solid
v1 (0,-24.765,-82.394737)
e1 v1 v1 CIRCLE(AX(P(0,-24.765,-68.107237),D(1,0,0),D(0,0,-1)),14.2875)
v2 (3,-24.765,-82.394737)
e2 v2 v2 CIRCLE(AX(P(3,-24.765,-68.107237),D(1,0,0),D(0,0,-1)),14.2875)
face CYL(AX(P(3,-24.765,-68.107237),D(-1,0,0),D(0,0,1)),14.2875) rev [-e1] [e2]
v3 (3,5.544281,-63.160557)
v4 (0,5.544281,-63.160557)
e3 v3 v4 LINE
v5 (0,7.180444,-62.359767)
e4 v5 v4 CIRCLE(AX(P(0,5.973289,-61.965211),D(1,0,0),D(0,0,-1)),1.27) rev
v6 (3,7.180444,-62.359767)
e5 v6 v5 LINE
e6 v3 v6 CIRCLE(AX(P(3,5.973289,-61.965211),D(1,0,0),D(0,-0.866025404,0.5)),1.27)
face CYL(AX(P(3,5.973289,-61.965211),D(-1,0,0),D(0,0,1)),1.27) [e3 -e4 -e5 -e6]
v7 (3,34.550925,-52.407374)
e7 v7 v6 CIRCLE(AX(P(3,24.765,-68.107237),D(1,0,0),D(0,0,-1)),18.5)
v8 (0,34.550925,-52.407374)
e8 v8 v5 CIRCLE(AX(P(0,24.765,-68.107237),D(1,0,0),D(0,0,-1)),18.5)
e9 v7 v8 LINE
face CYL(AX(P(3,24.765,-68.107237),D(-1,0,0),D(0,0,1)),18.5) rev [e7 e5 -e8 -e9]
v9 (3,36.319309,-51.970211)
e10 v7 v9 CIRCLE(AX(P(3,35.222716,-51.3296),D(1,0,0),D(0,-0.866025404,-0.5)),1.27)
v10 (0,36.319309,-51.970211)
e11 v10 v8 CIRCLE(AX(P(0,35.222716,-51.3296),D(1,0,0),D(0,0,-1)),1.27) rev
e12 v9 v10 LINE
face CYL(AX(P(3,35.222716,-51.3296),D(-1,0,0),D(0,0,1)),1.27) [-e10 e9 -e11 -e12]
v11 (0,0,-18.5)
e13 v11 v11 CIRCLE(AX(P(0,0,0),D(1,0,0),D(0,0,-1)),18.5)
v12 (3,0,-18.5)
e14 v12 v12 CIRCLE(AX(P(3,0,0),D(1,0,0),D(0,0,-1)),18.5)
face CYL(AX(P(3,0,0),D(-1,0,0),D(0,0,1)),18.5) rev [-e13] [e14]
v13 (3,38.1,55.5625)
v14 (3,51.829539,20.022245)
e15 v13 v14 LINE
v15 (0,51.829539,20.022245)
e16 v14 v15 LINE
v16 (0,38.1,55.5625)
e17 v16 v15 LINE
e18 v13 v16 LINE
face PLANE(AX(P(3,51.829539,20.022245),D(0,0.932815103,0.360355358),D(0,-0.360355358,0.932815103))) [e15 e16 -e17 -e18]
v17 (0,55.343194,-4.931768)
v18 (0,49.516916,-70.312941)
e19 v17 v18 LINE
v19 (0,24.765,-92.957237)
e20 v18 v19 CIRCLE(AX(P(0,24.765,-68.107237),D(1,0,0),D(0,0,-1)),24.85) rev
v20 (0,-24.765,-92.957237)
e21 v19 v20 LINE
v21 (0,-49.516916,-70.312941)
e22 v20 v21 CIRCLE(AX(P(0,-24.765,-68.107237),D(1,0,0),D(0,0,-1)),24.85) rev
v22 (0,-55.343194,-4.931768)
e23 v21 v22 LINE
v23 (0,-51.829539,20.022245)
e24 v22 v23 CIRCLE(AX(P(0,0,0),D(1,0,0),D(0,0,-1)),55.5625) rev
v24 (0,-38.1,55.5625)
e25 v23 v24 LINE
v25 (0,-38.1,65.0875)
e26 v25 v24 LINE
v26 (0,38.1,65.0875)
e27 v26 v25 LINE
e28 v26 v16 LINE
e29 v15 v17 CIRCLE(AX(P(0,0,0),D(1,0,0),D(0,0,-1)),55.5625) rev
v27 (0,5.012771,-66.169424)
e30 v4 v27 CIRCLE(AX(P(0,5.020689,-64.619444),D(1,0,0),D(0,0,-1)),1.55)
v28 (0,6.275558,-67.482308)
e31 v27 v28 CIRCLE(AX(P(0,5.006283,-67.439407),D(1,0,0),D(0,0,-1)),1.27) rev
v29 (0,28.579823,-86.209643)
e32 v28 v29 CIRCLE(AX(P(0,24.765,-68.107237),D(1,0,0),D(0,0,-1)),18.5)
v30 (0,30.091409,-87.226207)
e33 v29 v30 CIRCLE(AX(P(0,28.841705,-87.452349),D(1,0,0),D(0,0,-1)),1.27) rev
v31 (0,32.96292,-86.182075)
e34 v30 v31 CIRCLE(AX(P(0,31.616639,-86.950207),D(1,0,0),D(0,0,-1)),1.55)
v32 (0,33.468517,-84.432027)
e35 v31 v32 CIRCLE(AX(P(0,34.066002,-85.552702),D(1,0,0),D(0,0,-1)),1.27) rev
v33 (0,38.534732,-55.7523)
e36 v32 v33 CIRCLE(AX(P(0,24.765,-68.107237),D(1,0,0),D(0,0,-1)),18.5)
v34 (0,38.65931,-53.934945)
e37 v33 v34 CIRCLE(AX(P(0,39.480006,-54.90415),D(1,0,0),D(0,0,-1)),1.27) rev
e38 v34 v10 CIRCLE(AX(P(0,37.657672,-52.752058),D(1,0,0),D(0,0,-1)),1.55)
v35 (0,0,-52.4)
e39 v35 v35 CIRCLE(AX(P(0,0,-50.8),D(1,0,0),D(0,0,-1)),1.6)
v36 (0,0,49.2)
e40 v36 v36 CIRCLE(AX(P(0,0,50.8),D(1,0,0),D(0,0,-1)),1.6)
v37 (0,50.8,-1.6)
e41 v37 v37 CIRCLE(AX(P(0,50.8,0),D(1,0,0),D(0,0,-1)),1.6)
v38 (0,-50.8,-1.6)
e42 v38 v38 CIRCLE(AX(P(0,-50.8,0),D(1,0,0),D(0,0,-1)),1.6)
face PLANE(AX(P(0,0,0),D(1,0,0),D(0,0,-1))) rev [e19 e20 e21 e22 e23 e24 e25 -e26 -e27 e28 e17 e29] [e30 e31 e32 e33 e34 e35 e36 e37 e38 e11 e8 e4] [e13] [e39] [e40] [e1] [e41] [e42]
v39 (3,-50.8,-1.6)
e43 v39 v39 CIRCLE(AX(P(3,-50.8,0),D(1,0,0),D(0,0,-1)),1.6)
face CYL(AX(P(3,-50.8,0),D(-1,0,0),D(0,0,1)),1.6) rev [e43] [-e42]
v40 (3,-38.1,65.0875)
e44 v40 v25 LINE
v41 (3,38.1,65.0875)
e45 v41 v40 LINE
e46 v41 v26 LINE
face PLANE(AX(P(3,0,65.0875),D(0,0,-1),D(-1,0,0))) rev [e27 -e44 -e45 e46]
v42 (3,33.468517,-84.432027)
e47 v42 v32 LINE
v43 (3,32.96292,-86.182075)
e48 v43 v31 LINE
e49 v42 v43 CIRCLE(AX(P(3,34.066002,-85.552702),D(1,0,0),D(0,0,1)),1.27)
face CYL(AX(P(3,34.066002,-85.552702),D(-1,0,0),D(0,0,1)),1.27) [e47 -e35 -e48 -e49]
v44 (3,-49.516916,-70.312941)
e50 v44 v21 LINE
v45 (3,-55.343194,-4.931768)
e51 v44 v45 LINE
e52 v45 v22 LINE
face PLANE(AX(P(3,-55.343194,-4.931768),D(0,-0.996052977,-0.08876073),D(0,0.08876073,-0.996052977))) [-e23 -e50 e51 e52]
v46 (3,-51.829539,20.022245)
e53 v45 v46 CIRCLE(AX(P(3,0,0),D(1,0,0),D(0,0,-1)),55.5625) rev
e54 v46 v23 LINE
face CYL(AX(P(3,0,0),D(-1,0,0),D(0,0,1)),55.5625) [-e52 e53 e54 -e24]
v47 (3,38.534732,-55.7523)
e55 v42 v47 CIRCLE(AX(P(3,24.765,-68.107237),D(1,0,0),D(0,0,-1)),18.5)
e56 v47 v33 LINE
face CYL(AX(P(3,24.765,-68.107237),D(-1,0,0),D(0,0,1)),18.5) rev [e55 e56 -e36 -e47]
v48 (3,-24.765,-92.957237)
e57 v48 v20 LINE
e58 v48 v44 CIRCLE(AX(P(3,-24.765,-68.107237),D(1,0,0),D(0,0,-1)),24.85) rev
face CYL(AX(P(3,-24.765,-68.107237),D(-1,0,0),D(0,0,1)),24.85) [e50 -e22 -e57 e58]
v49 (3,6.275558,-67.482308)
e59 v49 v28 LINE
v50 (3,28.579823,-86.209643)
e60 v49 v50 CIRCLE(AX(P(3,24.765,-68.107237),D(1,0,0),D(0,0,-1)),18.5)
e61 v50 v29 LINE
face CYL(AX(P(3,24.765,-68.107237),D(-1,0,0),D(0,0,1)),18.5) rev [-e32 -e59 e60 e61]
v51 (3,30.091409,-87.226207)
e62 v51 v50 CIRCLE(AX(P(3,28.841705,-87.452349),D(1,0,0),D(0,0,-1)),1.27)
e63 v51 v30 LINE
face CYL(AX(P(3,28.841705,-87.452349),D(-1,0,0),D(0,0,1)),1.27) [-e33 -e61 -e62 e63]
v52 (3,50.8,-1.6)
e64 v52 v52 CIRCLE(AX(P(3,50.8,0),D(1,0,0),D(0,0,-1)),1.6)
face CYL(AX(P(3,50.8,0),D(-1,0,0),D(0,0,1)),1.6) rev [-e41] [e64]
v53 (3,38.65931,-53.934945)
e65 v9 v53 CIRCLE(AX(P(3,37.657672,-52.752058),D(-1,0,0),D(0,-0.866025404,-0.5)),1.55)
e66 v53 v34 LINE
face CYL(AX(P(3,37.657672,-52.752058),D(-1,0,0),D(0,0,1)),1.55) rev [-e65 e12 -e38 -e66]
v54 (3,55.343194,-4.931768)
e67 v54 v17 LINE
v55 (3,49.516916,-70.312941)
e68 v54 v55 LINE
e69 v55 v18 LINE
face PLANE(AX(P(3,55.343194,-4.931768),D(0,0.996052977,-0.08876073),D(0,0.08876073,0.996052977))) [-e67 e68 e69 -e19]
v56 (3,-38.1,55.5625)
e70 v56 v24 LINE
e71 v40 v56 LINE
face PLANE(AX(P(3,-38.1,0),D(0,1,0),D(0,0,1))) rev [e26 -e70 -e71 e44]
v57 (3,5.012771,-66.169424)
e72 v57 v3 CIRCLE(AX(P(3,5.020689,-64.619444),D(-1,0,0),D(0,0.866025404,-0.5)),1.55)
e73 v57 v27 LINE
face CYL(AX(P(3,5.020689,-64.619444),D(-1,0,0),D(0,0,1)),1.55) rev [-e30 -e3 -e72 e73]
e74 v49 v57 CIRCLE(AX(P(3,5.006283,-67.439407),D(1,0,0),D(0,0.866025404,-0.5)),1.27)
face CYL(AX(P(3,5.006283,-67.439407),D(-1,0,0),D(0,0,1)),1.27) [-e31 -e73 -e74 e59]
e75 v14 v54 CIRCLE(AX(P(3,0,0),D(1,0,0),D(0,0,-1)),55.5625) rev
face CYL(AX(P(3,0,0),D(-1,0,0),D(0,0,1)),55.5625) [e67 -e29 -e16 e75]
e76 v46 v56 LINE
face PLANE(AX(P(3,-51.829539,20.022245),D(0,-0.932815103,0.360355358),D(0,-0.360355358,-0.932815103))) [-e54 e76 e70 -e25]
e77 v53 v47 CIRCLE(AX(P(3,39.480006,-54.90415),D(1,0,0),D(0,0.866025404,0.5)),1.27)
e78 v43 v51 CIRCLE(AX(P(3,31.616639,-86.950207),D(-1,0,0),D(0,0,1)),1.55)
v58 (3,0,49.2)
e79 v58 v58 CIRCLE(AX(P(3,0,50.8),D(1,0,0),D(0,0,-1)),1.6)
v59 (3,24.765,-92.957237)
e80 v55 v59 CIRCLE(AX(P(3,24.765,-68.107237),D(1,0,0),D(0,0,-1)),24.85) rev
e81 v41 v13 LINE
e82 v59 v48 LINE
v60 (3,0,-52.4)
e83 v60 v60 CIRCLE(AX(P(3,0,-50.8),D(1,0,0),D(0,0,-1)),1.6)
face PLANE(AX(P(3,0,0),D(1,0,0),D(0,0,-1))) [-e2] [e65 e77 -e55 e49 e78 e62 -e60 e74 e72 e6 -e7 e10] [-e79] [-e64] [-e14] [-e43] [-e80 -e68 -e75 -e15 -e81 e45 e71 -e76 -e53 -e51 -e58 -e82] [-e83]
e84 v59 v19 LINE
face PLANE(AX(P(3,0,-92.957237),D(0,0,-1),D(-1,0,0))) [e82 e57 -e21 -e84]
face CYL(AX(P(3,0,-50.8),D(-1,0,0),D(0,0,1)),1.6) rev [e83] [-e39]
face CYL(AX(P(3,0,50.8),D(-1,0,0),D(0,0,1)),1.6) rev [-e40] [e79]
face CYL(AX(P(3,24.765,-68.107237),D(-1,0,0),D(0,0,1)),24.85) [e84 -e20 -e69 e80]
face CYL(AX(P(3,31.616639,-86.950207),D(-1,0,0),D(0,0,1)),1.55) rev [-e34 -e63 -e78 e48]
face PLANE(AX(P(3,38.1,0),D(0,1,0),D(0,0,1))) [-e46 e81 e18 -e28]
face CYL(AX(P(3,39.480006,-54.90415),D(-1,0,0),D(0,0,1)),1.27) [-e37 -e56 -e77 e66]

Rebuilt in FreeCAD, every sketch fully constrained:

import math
import FreeCAD as App
import Part
import Sketcher
from FreeCAD import Vector
Q = App.Units.Quantity

doc = App.newDocument("Part")
body = doc.addObject("PartDesign::Body", "Body")

# Sketch on YZ plane
sketch1 = doc.addObject("Sketcher::SketchObject", "Sketch")
body.addObject(sketch1)
sketch1.AttachmentSupport = (doc.YZ_Plane, [""])
sketch1.MapMode = "FlatFace"
sketch1.addGeometry(Part.ArcOfCircle(Part.Circle(Vector(0, 0, 0), Vector(0, 0, 1), 55.6), math.radians(159), math.radians(185)), False)
sketch1.addGeometry(Part.LineSegment(Vector(-55.3, -4.9, 0), Vector(-49.5, -70.3, 0)), False)
sketch1.addGeometry(Part.ArcOfCircle(Part.Circle(Vector(-24.8, -68.1, 0), Vector(0, 0, 1), 24.9), math.radians(-175), math.radians(-90)), False)
sketch1.addGeometry(Part.LineSegment(Vector(-24.8, -93, 0), Vector(24.8, -93, 0)), False)
sketch1.addGeometry(Part.ArcOfCircle(Part.Circle(Vector(24.8, -68.1, 0), Vector(0, 0, 1), 24.9), math.radians(-90), math.radians(-5)), False)
sketch1.addGeometry(Part.LineSegment(Vector(49.5, -70.3, 0), Vector(55.3, -4.9, 0)), False)
sketch1.addGeometry(Part.ArcOfCircle(Part.Circle(Vector(0, 0, 0), Vector(0, 0, 1), 55.6), math.radians(-5), math.radians(21)), False)
sketch1.addGeometry(Part.LineSegment(Vector(51.8, 20, 0), Vector(38.1, 55.6, 0)), False)
sketch1.addGeometry(Part.LineSegment(Vector(38.1, 55.6, 0), Vector(38.1, 65.1, 0)), False)
sketch1.addGeometry(Part.LineSegment(Vector(38.1, 65.1, 0), Vector(-38.1, 65.1, 0)), False)
sketch1.addGeometry(Part.LineSegment(Vector(-38.1, 65.1, 0), Vector(-38.1, 55.6, 0)), False)
sketch1.addGeometry(Part.LineSegment(Vector(-38.1, 55.6, 0), Vector(-51.8, 20, 0)), False)
sketch1.addGeometry(Part.Circle(Vector(-24.8, -68.1, 0), Vector(0, 0, 1), 14.3), False)
sketch1.addGeometry(Part.Circle(Vector(-50.8, 0, 0), Vector(0, 0, 1), 1.6), False)
sketch1.addGeometry(Part.Circle(Vector(24.8, -68.1, 0), Vector(0, 0, 1), 18.5), False)
sketch1.addGeometry(Part.Circle(Vector(0, -50.8, 0), Vector(0, 0, 1), 1.6), False)
sketch1.addGeometry(Part.Circle(Vector(0, 0, 0), Vector(0, 0, 1), 18.5), False)
sketch1.addGeometry(Part.Circle(Vector(0, 50.8, 0), Vector(0, 0, 1), 1.6), False)
sketch1.addGeometry(Part.Circle(Vector(50.8, 0, 0), Vector(0, 0, 1), 1.6), False)
sketch1.addConstraint(Sketcher.Constraint("Tangent", 0, 2, 1, 1))
sketch1.addConstraint(Sketcher.Constraint("Tangent", 1, 2, 2, 1))
sketch1.addConstraint(Sketcher.Constraint("Tangent", 2, 2, 3, 1))
sketch1.addConstraint(Sketcher.Constraint("Tangent", 3, 2, 4, 1))
sketch1.addConstraint(Sketcher.Constraint("Tangent", 4, 2, 5, 1))
sketch1.addConstraint(Sketcher.Constraint("Tangent", 5, 2, 6, 1))
sketch1.addConstraint(Sketcher.Constraint("Tangent", 6, 2, 7, 1))
sketch1.addConstraint(Sketcher.Constraint("Coincident", 7, 2, 8, 1))
sketch1.addConstraint(Sketcher.Constraint("Coincident", 8, 2, 9, 1))
sketch1.addConstraint(Sketcher.Constraint("Coincident", 9, 2, 10, 1))
sketch1.addConstraint(Sketcher.Constraint("Coincident", 10, 2, 11, 1))
sketch1.addConstraint(Sketcher.Constraint("Tangent", 11, 2, 0, 1))
sketch1.addConstraint(Sketcher.Constraint("Horizontal", 3))
sketch1.addConstraint(Sketcher.Constraint("Vertical", 8))
sketch1.addConstraint(Sketcher.Constraint("Horizontal", 9))
sketch1.addConstraint(Sketcher.Constraint("Vertical", 10))
sketch1.addConstraint(Sketcher.Constraint("Coincident", 0, 3, -1, 1))
sketch1.addConstraint(Sketcher.Constraint("Coincident", 6, 3, -1, 1))
sketch1.addConstraint(Sketcher.Constraint("Coincident", 16, 3, -1, 1))
sketch1.addConstraint(Sketcher.Constraint("Coincident", 12, 3, 2, 3))
sketch1.addConstraint(Sketcher.Constraint("Coincident", 14, 3, 4, 3))
sketch1.addConstraint(Sketcher.Constraint("Equal", 2, 4))
sketch1.addConstraint(Sketcher.Constraint("Equal", 0, 6))
sketch1.addConstraint(Sketcher.Constraint("Equal", 13, 15))
sketch1.addConstraint(Sketcher.Constraint("Equal", 14, 16))
sketch1.addConstraint(Sketcher.Constraint("Equal", 15, 17))
sketch1.addConstraint(Sketcher.Constraint("Equal", 17, 18))
sketch1.addConstraint(Sketcher.Constraint("Symmetric", 15, 3, 17, 3, -1, 1))
sketch1.addConstraint(Sketcher.Constraint("Symmetric", 13, 3, 18, 3, -1, 1))
sketch1.addConstraint(Sketcher.Constraint("Symmetric", 7, 2, 10, 2, -2))
sketch1.addConstraint(Sketcher.Constraint("PointOnObject", 13, 3, -1))
sketch1.addConstraint(Sketcher.Constraint("PointOnObject", 15, 3, -2))
sketch1.addConstraint(Sketcher.Constraint("Horizontal", 1, 2, 4, 2))
sketch1.addConstraint(Sketcher.Constraint("DistanceX", 9, 2, 9, 1, Q("3 in")))
sketch1.addConstraint(Sketcher.Constraint("Diameter", 12, Q("1.125 in")))
sketch1.addConstraint(Sketcher.Constraint("DistanceX", 13, 3, -1, 1, Q("2 in")))
sketch1.addConstraint(Sketcher.Constraint("DistanceY", 15, 3, -1, 1, Q("2 in")))
sketch1.addConstraint(Sketcher.Constraint("Radius", 0, Q("2.1875 in")))
sketch1.addConstraint(Sketcher.Constraint("Distance", 7, Q("1.5 in")))
sketch1.addConstraint(Sketcher.Constraint("DistanceX", 3, 1, 3, 2, Q("1.95 in")))
sketch1.addConstraint(Sketcher.Constraint("Diameter", 13, Q("3.2 mm")))
sketch1.addConstraint(Sketcher.Constraint("Diameter", 14, Q("37 mm")))
sketch1.addConstraint(Sketcher.Constraint("DistanceY", 8, 1, 8, 2, Q("0.375 in")))
sketch1.addConstraint(Sketcher.Constraint("Radius", 2, Q("24.85 mm")))
sketch1.addConstraint(Sketcher.Constraint("DistanceY", 1, 2, -1, 1, Q("70.312941 mm")))
pad1 = doc.addObject("PartDesign::Pad", "Pad")
body.addObject(pad1)
pad1.Profile = sketch1
pad1.Length = 3

# Sketch on YZ plane
sketch2 = doc.addObject("Sketcher::SketchObject", "Sketch001")
body.addObject(sketch2)
sketch2.AttachmentSupport = (doc.YZ_Plane, [""])
sketch2.MapMode = "FlatFace"
sketch2.addGeometry(Part.ArcOfCircle(Part.Circle(Vector(31.6, -87, 0), Vector(0, 0, 1), 1.6), math.radians(-170), math.radians(30)), False)
sketch2.addGeometry(Part.ArcOfCircle(Part.Circle(Vector(28.8, -87.5, 0), Vector(0, 0, 1), 1.3), math.radians(10), math.radians(102)), False)
sketch2.addGeometry(Part.ArcOfCircle(Part.Circle(Vector(24.8, -68.1, 0), Vector(0, 0, 1), 18.5), math.radians(-78.1), math.radians(-61.94)), False)
sketch2.addGeometry(Part.ArcOfCircle(Part.Circle(Vector(34.1, -85.6, 0), Vector(0, 0, 1), 1.3), math.radians(118), math.radians(210)), False)
sketch2.addConstraint(Sketcher.Constraint("Tangent", 0, 1, 1, 1))
sketch2.addConstraint(Sketcher.Constraint("Tangent", 1, 2, 2, 1))
sketch2.addConstraint(Sketcher.Constraint("Tangent", 2, 2, 3, 1))
sketch2.addConstraint(Sketcher.Constraint("Tangent", 3, 2, 0, 2))
sketch2.addConstraint(Sketcher.Constraint("Equal", 1, 3))
sketch2.addConstraint(Sketcher.Constraint("Radius", 1, Q("0.05 in")))
sketch2.addConstraint(Sketcher.Constraint("Radius", 0, Q("1.55 mm")))
sketch2.addConstraint(Sketcher.Constraint("Radius", 2, Q("18.5 mm")))
sketch2.addConstraint(Sketcher.Constraint("DistanceX", -1, 1, 2, 3, Q("0.975 in")))
sketch2.addConstraint(Sketcher.Constraint("DistanceX", -1, 1, 3, 3, Q("34.066002 mm")))
sketch2.addConstraint(Sketcher.Constraint("DistanceY", 0, 1, 0, 3, Q("0.276 mm")))
sketch2.addConstraint(Sketcher.Constraint("DistanceY", 1, 3, -1, 1, Q("87.452349 mm")))
pocket1 = doc.addObject("PartDesign::Pocket", "Pocket")
body.addObject(pocket1)
pocket1.Profile = sketch2
pocket1.Length = 218.67708
pocket1.Midplane = True
doc.recompute()

datumline = doc.addObject("PartDesign::Line", "DatumLine")
body.addObject(datumline)
datumline.Placement = App.Placement(Vector(0, 24.765, -68.107237), App.Rotation(Vector(0, 0, 1), Vector(1, 0, 0)))
polarpattern = doc.addObject("PartDesign::PolarPattern", "PolarPattern")
body.addObject(polarpattern)
polarpattern.Originals = [pocket1]
polarpattern.Axis = (datumline, [""])
polarpattern.Angle = 360
polarpattern.Occurrences = 3
body.Tip = polarpattern

doc.recompute()
